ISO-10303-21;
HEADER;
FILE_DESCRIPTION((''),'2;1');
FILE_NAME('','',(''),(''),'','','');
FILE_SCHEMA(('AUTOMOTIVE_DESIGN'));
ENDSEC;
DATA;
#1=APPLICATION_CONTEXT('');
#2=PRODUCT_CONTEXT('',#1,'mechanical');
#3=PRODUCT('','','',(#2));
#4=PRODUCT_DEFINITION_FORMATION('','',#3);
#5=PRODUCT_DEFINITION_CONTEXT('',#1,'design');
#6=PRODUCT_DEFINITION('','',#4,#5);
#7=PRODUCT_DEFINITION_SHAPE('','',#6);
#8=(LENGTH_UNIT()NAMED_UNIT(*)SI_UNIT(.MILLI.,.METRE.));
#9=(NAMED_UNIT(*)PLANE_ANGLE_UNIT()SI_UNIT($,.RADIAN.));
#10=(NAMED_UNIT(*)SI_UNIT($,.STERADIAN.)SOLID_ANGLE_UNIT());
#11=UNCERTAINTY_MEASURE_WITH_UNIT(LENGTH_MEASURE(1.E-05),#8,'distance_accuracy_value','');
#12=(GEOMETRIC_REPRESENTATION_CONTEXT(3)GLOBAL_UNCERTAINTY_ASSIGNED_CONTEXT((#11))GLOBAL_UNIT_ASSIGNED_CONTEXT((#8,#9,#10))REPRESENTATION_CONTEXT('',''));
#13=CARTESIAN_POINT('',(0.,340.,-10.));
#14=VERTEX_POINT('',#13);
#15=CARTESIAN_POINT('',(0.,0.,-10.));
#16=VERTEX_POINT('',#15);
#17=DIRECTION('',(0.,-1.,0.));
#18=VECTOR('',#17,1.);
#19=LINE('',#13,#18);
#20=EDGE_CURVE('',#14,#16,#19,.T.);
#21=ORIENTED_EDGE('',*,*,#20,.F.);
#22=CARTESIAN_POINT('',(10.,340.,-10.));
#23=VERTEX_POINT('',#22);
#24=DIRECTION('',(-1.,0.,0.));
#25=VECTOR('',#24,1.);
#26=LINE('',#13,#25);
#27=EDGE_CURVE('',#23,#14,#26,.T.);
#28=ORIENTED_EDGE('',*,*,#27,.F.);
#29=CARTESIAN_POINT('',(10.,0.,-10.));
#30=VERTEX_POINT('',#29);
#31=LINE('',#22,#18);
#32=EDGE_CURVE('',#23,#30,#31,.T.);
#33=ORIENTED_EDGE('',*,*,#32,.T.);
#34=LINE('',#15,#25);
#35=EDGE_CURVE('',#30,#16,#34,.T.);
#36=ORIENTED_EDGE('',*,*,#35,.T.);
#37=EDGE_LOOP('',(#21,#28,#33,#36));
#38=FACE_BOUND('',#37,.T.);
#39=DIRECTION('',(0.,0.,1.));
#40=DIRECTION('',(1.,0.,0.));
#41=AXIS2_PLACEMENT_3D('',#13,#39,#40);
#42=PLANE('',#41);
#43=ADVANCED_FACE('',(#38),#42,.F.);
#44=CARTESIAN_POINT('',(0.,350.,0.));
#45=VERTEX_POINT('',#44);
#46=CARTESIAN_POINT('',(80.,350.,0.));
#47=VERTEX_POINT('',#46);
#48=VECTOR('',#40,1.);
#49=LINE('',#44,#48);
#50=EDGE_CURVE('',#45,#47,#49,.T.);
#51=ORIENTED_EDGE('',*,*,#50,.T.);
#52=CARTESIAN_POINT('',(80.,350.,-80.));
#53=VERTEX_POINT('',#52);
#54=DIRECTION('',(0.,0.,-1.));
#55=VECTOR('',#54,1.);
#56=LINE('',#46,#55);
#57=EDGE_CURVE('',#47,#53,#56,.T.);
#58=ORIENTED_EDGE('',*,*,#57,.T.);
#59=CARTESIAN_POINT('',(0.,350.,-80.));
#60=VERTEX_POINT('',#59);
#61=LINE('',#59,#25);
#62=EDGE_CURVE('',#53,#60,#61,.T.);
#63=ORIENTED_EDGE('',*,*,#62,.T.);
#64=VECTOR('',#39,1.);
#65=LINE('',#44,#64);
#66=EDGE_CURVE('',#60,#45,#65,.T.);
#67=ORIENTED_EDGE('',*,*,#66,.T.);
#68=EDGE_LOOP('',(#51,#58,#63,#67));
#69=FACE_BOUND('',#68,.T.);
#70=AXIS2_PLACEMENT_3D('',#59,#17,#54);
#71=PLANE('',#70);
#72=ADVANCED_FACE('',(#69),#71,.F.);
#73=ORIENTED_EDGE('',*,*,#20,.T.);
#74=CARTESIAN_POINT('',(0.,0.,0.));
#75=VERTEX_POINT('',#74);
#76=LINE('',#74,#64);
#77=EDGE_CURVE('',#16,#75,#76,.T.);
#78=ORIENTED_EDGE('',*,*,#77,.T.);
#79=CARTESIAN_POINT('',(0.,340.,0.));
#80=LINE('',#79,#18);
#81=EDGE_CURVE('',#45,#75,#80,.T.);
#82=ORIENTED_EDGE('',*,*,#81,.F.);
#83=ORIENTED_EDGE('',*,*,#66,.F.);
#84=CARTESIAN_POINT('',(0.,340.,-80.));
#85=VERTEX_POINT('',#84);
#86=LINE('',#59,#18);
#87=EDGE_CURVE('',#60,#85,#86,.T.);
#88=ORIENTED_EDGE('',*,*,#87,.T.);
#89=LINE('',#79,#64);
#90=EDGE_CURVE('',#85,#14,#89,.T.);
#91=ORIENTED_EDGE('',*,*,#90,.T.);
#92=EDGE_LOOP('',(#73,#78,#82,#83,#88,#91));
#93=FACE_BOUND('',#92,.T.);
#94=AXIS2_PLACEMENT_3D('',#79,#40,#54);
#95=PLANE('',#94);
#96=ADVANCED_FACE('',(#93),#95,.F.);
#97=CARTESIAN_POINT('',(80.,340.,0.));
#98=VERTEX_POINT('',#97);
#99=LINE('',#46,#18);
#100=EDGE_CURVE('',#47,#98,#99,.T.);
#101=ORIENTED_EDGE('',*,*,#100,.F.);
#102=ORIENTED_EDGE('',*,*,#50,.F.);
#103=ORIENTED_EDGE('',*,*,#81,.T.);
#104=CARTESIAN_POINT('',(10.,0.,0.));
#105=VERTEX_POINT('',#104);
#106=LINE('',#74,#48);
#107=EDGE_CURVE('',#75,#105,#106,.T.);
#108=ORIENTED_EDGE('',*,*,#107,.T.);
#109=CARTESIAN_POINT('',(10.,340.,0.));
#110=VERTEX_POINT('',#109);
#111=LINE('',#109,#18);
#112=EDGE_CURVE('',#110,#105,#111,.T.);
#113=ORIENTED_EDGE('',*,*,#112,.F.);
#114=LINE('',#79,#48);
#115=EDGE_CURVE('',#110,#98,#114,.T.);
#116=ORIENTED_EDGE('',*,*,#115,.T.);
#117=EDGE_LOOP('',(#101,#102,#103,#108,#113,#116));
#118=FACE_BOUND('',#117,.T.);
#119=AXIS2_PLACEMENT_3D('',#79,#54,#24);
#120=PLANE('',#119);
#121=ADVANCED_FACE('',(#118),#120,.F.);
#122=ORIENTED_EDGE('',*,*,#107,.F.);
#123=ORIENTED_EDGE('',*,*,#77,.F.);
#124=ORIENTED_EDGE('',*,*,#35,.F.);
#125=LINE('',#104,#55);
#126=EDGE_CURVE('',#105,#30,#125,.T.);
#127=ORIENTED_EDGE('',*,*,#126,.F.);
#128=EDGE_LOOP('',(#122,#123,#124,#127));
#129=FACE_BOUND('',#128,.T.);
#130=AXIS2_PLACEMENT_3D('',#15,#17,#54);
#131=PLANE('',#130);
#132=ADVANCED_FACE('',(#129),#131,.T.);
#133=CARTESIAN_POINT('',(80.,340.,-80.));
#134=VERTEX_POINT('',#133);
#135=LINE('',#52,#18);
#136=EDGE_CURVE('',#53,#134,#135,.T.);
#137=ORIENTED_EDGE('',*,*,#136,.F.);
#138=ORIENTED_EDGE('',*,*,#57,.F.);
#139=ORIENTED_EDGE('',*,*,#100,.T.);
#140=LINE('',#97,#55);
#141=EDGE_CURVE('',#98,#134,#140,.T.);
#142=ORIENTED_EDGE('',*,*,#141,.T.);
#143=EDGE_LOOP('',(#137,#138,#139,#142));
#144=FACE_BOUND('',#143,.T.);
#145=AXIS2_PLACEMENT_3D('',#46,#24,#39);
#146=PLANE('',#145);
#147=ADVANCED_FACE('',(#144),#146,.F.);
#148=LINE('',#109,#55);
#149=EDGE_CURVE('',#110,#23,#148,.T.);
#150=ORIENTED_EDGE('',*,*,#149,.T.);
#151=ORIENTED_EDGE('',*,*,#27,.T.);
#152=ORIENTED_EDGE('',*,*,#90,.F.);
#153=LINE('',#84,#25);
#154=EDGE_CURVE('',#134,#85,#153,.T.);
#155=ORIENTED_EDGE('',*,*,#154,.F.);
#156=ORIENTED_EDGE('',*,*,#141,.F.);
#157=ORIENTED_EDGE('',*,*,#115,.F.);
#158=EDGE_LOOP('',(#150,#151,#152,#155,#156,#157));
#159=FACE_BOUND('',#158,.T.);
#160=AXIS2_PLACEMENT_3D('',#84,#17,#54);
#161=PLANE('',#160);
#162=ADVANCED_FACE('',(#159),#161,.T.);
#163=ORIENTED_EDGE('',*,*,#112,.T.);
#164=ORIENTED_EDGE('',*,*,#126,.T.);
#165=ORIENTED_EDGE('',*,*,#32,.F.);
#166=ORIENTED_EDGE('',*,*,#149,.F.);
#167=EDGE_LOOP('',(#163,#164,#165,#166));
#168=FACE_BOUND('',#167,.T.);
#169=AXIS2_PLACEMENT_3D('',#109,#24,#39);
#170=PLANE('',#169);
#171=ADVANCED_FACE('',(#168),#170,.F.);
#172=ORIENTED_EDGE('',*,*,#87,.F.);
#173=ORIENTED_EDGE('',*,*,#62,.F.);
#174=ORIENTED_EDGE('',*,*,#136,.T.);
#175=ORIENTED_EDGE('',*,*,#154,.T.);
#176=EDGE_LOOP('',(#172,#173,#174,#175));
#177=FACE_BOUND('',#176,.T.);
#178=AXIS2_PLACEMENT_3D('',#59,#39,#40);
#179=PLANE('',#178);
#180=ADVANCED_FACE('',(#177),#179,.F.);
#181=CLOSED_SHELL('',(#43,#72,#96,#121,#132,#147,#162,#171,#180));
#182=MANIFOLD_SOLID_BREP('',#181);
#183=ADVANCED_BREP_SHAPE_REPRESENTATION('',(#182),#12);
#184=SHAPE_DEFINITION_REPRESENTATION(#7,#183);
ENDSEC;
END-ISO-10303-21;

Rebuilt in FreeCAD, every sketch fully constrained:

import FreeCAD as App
import Part
import Sketcher

V = App.Vector

doc = App.newDocument("Part")
body = doc.addObject("PartDesign::Body", "Body")

# Sketch on XZ plane
sketch1 = body.newObject("Sketcher::SketchObject", "Sketch")
sketch1.AttachmentSupport = (doc.getObject("XZ_Plane"), [""])
sketch1.MapMode = "FlatFace"
sketch1.addGeometry([
    Part.LineSegment(V(0, -10, 0), V(0, 0, 0)),
    Part.LineSegment(V(0, 0, 0), V(10, 0, 0)),
    Part.LineSegment(V(10, 0, 0), V(10, -10, 0)),
    Part.LineSegment(V(10, -10, 0), V(0, -10, 0)),
], False)
sketch1.addConstraint([
    Sketcher.Constraint("Coincident", 0, 2, 1, 1),
    Sketcher.Constraint("Coincident", 1, 2, 2, 1),
    Sketcher.Constraint("Coincident", 2, 2, 3, 1),
    Sketcher.Constraint("Coincident", 3, 2, 0, 1),
    Sketcher.Constraint("Vertical", 0),
    Sketcher.Constraint("Horizontal", 1),
    Sketcher.Constraint("Vertical", 2),
    Sketcher.Constraint("Horizontal", 3),
    Sketcher.Constraint("Coincident", 0, 2, -1, 1),
    Sketcher.Constraint("Equal", 3, 0),
    Sketcher.Constraint("DistanceX", 1, 1, 1, 2, 10.0),
])
pad1 = body.newObject("PartDesign::Pad", "Pad")
pad1.Profile = sketch1
pad1.Length = 340
pad1.Reversed = True

# Sketch on XZ plane
sketch2 = body.newObject("Sketcher::SketchObject", "Sketch001")
sketch2.AttachmentSupport = (doc.getObject("XZ_Plane"), [""])
sketch2.MapMode = "FlatFace"
sketch2.AttachmentOffset = App.Placement(V(0, 0, -340), App.Rotation())
sketch2.addGeometry([
    Part.LineSegment(V(0, -80, 0), V(0, 0, 0)),
    Part.LineSegment(V(0, 0, 0), V(80, 0, 0)),
    Part.LineSegment(V(80, 0, 0), V(80, -80, 0)),
    Part.LineSegment(V(80, -80, 0), V(0, -80, 0)),
], False)
sketch2.addConstraint([
    Sketcher.Constraint("Coincident", 0, 2, 1, 1),
    Sketcher.Constraint("Coincident", 1, 2, 2, 1),
    Sketcher.Constraint("Coincident", 2, 2, 3, 1),
    Sketcher.Constraint("Coincident", 3, 2, 0, 1),
    Sketcher.Constraint("Vertical", 0),
    Sketcher.Constraint("Horizontal", 1),
    Sketcher.Constraint("Vertical", 2),
    Sketcher.Constraint("Horizontal", 3),
    Sketcher.Constraint("Coincident", 0, 2, -1, 1),
    Sketcher.Constraint("Equal", 3, 0),
    Sketcher.Constraint("DistanceX", 1, 1, 1, 2, 80.0),
])
pad2 = body.newObject("PartDesign::Pad", "Pad001")
pad2.Profile = sketch2
pad2.Length = 10
pad2.Reversed = True

doc.recompute()
